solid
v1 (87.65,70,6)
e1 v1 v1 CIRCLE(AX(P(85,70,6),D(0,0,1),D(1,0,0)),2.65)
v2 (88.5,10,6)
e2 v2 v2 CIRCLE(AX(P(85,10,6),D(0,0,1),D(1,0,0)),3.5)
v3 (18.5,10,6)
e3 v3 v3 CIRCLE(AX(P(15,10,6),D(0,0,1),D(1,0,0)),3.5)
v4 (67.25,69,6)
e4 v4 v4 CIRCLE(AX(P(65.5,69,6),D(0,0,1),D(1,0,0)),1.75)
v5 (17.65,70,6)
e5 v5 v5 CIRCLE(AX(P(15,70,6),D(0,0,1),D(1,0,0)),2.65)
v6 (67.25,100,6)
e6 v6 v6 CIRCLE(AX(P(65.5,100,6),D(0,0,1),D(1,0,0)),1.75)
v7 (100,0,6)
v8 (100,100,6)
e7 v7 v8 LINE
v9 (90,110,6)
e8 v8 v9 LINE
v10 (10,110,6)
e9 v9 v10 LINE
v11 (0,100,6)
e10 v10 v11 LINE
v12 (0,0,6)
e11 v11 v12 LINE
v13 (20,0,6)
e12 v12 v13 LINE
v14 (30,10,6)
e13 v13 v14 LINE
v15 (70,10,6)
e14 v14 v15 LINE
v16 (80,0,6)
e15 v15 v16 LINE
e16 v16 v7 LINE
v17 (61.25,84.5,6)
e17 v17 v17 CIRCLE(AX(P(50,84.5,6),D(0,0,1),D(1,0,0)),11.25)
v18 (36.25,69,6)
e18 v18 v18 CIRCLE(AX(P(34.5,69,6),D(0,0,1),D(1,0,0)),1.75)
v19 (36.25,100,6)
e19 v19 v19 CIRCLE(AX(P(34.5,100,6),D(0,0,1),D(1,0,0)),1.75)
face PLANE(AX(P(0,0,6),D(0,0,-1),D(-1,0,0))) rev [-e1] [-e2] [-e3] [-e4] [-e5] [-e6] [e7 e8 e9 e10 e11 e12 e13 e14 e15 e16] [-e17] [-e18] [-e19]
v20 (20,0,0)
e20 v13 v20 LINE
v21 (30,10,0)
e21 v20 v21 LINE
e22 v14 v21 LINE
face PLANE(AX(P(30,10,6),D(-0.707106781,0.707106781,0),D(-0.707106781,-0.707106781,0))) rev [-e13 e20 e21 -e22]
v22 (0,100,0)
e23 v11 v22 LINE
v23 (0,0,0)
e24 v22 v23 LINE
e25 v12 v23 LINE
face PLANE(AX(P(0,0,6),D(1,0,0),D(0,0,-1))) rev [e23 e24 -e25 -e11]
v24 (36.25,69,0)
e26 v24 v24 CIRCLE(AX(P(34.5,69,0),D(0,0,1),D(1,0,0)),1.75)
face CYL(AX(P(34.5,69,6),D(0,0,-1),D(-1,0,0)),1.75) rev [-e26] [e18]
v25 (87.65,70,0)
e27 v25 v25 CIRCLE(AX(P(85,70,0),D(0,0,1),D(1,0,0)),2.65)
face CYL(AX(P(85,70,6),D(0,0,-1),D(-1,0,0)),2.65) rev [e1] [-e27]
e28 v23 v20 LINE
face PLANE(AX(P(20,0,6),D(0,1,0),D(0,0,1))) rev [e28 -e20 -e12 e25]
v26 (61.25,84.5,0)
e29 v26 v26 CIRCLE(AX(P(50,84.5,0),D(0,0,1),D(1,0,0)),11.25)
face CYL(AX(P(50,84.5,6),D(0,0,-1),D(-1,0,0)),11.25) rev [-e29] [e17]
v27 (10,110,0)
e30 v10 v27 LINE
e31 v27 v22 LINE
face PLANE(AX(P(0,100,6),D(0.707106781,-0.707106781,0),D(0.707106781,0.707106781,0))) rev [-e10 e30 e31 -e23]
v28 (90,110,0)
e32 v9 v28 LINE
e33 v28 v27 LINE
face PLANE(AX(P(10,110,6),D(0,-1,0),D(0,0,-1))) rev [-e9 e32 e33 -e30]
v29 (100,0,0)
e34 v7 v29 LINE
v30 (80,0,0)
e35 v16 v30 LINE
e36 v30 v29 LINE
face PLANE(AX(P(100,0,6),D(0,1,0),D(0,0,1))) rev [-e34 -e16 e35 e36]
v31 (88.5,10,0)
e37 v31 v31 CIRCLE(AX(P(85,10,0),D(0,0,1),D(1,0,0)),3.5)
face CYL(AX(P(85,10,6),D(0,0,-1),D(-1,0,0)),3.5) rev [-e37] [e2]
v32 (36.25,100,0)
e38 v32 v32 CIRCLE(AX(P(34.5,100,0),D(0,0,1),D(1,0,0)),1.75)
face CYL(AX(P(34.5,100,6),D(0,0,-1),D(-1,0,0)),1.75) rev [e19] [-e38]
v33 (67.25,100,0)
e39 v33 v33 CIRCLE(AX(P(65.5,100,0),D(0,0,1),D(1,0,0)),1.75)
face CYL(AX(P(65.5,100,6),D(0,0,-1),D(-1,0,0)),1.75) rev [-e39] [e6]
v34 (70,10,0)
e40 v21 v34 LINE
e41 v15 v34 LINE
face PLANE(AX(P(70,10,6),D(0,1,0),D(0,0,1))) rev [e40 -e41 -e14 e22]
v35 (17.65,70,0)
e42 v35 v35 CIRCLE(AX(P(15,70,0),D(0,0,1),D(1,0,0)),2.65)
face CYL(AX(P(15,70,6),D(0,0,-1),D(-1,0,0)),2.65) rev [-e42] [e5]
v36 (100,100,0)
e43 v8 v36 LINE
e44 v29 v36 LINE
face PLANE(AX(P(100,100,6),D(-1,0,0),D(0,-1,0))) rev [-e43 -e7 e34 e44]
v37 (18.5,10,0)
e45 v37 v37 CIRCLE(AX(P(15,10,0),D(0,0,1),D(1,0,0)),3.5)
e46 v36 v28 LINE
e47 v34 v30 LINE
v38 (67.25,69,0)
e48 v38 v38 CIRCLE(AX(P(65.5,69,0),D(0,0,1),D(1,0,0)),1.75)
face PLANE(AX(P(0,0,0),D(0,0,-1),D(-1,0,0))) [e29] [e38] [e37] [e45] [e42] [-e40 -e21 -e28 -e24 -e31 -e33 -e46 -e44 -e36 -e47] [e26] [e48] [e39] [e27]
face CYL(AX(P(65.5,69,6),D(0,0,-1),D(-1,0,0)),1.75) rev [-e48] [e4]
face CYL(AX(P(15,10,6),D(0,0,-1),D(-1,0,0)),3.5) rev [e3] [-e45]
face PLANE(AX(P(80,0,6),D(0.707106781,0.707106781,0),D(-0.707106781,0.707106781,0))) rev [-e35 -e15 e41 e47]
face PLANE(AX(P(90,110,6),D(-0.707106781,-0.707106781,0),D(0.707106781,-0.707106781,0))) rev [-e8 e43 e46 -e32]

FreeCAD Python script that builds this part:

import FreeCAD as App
import Part
import Sketcher

doc = App.newDocument("Part")
body = doc.addObject("PartDesign::Body", "Body")

sketch1 = body.newObject("Sketcher::SketchObject", "Sketch")
sketch1.AttachmentSupport = (doc.getObject("XY_Plane"), [""])
sketch1.MapMode = "FlatFace"
sketch1.addGeometry(Part.LineSegment(App.Vector(100, 0, 0), App.Vector(100, 100, 0)), False)
sketch1.addGeometry(Part.LineSegment(App.Vector(100, 100, 0), App.Vector(90, 110, 0)), False)
sketch1.addGeometry(Part.LineSegment(App.Vector(90, 110, 0), App.Vector(10, 110, 0)), False)
sketch1.addGeometry(Part.LineSegment(App.Vector(10, 110, 0), App.Vector(0, 100, 0)), False)
sketch1.addGeometry(Part.LineSegment(App.Vector(0, 100, 0), App.Vector(0, 0, 0)), False)
sketch1.addGeometry(Part.LineSegment(App.Vector(0, 0, 0), App.Vector(20, 0, 0)), False)
sketch1.addGeometry(Part.LineSegment(App.Vector(20, 0, 0), App.Vector(30, 10, 0)), False)
sketch1.addGeometry(Part.LineSegment(App.Vector(30, 10, 0), App.Vector(70, 10, 0)), False)
sketch1.addGeometry(Part.LineSegment(App.Vector(70, 10, 0), App.Vector(80, 0, 0)), False)
sketch1.addGeometry(Part.LineSegment(App.Vector(80, 0, 0), App.Vector(100, 0, 0)), False)
sketch1.addGeometry(Part.Circle(App.Vector(85, 10, 0), App.Vector(0, 0, 1), 3.5), False)
sketch1.addGeometry(Part.Circle(App.Vector(15, 10, 0), App.Vector(0, 0, 1), 3.5), False)
sketch1.addGeometry(Part.Circle(App.Vector(85, 70, 0), App.Vector(0, 0, 1), 2.65), False)
sketch1.addGeometry(Part.Circle(App.Vector(65.5, 69, 0), App.Vector(0, 0, 1), 1.75), False)
sketch1.addGeometry(Part.Circle(App.Vector(65.5, 100, 0), App.Vector(0, 0, 1), 1.75), False)
sketch1.addGeometry(Part.Circle(App.Vector(34.5, 69, 0), App.Vector(0, 0, 1), 1.75), False)
sketch1.addGeometry(Part.Circle(App.Vector(15, 70, 0), App.Vector(0, 0, 1), 2.65), False)
sketch1.addGeometry(Part.Circle(App.Vector(50, 84.5, 0), App.Vector(0, 0, 1), 11.25), False)
sketch1.addGeometry(Part.Circle(App.Vector(34.5, 100, 0), App.Vector(0, 0, 1), 1.75), False)
sketch1.addConstraint(Sketcher.Constraint("Coincident", 0, 2, 1, 1))
sketch1.addConstraint(Sketcher.Constraint("Coincident", 1, 2, 2, 1))
sketch1.addConstraint(Sketcher.Constraint("Coincident", 2, 2, 3, 1))
sketch1.addConstraint(Sketcher.Constraint("Coincident", 3, 2, 4, 1))
sketch1.addConstraint(Sketcher.Constraint("Coincident", 4, 2, 5, 1))
sketch1.addConstraint(Sketcher.Constraint("Coincident", 5, 2, 6, 1))
sketch1.addConstraint(Sketcher.Constraint("Coincident", 6, 2, 7, 1))
sketch1.addConstraint(Sketcher.Constraint("Coincident", 7, 2, 8, 1))
sketch1.addConstraint(Sketcher.Constraint("Coincident", 8, 2, 9, 1))
sketch1.addConstraint(Sketcher.Constraint("Coincident", 9, 2, 0, 1))
sketch1.addConstraint(Sketcher.Constraint("Vertical", 0))
sketch1.addConstraint(Sketcher.Constraint("Horizontal", 2))
sketch1.addConstraint(Sketcher.Constraint("Vertical", 4))
sketch1.addConstraint(Sketcher.Constraint("Horizontal", 5))
sketch1.addConstraint(Sketcher.Constraint("Horizontal", 7))
sketch1.addConstraint(Sketcher.Constraint("Horizontal", 9))
sketch1.addConstraint(Sketcher.Constraint("Coincident", 4, 2, -1, 1))
sketch1.addConstraint(Sketcher.Constraint("Equal", 10, 11))
sketch1.addConstraint(Sketcher.Constraint("Equal", 13, 14))
sketch1.addConstraint(Sketcher.Constraint("Equal", 14, 15))
sketch1.addConstraint(Sketcher.Constraint("Equal", 12, 16))
sketch1.addConstraint(Sketcher.Constraint("Equal", 15, 18))
sketch1.addConstraint(Sketcher.Constraint("PointOnObject", 8, 2, -1))
sketch1.addConstraint(Sketcher.Constraint("Perpendicular", 1, 3))
sketch1.addConstraint(Sketcher.Constraint("Parallel", 3, 6))
sketch1.addConstraint(Sketcher.Constraint("Perpendicular", 6, 8))
sketch1.addConstraint(Sketcher.Constraint("Horizontal", 10, 3, 11, 3))
sketch1.addConstraint(Sketcher.Constraint("Horizontal", 13, 3, 15, 3))
sketch1.addConstraint(Sketcher.Constraint("Horizontal", 12, 3, 16, 3))
sketch1.addConstraint(Sketcher.Constraint("Horizontal", 14, 3, 18, 3))
sketch1.addConstraint(Sketcher.Constraint("Horizontal", 18, 3, 0, 2))
sketch1.addConstraint(Sketcher.Constraint("Horizontal", 0, 2, 3, 2))
sketch1.addConstraint(Sketcher.Constraint("Horizontal", 11, 3, 6, 2))
sketch1.addConstraint(Sketcher.Constraint("Vertical", 10, 3, 12, 3))
sketch1.addConstraint(Sketcher.Constraint("Vertical", 13, 3, 14, 3))
sketch1.addConstraint(Sketcher.Constraint("Vertical", 11, 3, 16, 3))
sketch1.addConstraint(Sketcher.Constraint("Vertical", 15, 3, 18, 3))
sketch1.addConstraint(Sketcher.Constraint("Equal", 5, 9))
sketch1.addConstraint(Sketcher.Constraint("Equal", 1, 3))
sketch1.addConstraint(Sketcher.Constraint("Equal", 3, 6))
sketch1.addConstraint(Sketcher.Constraint("Diameter", 10, 7.0))
sketch1.addConstraint(Sketcher.Constraint("Diameter", 12, 5.3))
sketch1.addConstraint(Sketcher.Constraint("Diameter", 13, 3.5))
sketch1.addConstraint(Sketcher.Constraint("Diameter", 17, 22.5))
sketch1.addConstraint(Sketcher.Constraint("DistanceX", 2, 2, 2, 1, 80.0))
sketch1.addConstraint(Sketcher.Constraint("DistanceX", 5, 1, 5, 2, 20.0))
sketch1.addConstraint(Sketcher.Constraint("DistanceY", 0, 1, 0, 2, 100.0))
sketch1.addConstraint(Sketcher.Constraint("DistanceX", -1, 1, 10, 3, 85.0))
sketch1.addConstraint(Sketcher.Constraint("DistanceY", -1, 1, 10, 3, 10.0))
sketch1.addConstraint(Sketcher.Constraint("DistanceX", -1, 1, 11, 3, 15.0))
sketch1.addConstraint(Sketcher.Constraint("DistanceY", -1, 1, 12, 3, 70.0))
sketch1.addConstraint(Sketcher.Constraint("DistanceY", -1, 1, 13, 3, 69.0))
sketch1.addConstraint(Sketcher.Constraint("DistanceX", -1, 1, 17, 3, 50.0))
sketch1.addConstraint(Sketcher.Constraint("DistanceX", 15, 3, 13, 3, 31.0))
sketch1.addConstraint(Sketcher.Constraint("DistanceX", -1, 1, 13, 3, 65.5))
sketch1.addConstraint(Sketcher.Constraint("DistanceY", -1, 1, 17, 3, 84.5))
pad1 = body.newObject("PartDesign::Pad", "Pad")
pad1.Profile = sketch1
pad1.Length = 6

doc.recompute()
